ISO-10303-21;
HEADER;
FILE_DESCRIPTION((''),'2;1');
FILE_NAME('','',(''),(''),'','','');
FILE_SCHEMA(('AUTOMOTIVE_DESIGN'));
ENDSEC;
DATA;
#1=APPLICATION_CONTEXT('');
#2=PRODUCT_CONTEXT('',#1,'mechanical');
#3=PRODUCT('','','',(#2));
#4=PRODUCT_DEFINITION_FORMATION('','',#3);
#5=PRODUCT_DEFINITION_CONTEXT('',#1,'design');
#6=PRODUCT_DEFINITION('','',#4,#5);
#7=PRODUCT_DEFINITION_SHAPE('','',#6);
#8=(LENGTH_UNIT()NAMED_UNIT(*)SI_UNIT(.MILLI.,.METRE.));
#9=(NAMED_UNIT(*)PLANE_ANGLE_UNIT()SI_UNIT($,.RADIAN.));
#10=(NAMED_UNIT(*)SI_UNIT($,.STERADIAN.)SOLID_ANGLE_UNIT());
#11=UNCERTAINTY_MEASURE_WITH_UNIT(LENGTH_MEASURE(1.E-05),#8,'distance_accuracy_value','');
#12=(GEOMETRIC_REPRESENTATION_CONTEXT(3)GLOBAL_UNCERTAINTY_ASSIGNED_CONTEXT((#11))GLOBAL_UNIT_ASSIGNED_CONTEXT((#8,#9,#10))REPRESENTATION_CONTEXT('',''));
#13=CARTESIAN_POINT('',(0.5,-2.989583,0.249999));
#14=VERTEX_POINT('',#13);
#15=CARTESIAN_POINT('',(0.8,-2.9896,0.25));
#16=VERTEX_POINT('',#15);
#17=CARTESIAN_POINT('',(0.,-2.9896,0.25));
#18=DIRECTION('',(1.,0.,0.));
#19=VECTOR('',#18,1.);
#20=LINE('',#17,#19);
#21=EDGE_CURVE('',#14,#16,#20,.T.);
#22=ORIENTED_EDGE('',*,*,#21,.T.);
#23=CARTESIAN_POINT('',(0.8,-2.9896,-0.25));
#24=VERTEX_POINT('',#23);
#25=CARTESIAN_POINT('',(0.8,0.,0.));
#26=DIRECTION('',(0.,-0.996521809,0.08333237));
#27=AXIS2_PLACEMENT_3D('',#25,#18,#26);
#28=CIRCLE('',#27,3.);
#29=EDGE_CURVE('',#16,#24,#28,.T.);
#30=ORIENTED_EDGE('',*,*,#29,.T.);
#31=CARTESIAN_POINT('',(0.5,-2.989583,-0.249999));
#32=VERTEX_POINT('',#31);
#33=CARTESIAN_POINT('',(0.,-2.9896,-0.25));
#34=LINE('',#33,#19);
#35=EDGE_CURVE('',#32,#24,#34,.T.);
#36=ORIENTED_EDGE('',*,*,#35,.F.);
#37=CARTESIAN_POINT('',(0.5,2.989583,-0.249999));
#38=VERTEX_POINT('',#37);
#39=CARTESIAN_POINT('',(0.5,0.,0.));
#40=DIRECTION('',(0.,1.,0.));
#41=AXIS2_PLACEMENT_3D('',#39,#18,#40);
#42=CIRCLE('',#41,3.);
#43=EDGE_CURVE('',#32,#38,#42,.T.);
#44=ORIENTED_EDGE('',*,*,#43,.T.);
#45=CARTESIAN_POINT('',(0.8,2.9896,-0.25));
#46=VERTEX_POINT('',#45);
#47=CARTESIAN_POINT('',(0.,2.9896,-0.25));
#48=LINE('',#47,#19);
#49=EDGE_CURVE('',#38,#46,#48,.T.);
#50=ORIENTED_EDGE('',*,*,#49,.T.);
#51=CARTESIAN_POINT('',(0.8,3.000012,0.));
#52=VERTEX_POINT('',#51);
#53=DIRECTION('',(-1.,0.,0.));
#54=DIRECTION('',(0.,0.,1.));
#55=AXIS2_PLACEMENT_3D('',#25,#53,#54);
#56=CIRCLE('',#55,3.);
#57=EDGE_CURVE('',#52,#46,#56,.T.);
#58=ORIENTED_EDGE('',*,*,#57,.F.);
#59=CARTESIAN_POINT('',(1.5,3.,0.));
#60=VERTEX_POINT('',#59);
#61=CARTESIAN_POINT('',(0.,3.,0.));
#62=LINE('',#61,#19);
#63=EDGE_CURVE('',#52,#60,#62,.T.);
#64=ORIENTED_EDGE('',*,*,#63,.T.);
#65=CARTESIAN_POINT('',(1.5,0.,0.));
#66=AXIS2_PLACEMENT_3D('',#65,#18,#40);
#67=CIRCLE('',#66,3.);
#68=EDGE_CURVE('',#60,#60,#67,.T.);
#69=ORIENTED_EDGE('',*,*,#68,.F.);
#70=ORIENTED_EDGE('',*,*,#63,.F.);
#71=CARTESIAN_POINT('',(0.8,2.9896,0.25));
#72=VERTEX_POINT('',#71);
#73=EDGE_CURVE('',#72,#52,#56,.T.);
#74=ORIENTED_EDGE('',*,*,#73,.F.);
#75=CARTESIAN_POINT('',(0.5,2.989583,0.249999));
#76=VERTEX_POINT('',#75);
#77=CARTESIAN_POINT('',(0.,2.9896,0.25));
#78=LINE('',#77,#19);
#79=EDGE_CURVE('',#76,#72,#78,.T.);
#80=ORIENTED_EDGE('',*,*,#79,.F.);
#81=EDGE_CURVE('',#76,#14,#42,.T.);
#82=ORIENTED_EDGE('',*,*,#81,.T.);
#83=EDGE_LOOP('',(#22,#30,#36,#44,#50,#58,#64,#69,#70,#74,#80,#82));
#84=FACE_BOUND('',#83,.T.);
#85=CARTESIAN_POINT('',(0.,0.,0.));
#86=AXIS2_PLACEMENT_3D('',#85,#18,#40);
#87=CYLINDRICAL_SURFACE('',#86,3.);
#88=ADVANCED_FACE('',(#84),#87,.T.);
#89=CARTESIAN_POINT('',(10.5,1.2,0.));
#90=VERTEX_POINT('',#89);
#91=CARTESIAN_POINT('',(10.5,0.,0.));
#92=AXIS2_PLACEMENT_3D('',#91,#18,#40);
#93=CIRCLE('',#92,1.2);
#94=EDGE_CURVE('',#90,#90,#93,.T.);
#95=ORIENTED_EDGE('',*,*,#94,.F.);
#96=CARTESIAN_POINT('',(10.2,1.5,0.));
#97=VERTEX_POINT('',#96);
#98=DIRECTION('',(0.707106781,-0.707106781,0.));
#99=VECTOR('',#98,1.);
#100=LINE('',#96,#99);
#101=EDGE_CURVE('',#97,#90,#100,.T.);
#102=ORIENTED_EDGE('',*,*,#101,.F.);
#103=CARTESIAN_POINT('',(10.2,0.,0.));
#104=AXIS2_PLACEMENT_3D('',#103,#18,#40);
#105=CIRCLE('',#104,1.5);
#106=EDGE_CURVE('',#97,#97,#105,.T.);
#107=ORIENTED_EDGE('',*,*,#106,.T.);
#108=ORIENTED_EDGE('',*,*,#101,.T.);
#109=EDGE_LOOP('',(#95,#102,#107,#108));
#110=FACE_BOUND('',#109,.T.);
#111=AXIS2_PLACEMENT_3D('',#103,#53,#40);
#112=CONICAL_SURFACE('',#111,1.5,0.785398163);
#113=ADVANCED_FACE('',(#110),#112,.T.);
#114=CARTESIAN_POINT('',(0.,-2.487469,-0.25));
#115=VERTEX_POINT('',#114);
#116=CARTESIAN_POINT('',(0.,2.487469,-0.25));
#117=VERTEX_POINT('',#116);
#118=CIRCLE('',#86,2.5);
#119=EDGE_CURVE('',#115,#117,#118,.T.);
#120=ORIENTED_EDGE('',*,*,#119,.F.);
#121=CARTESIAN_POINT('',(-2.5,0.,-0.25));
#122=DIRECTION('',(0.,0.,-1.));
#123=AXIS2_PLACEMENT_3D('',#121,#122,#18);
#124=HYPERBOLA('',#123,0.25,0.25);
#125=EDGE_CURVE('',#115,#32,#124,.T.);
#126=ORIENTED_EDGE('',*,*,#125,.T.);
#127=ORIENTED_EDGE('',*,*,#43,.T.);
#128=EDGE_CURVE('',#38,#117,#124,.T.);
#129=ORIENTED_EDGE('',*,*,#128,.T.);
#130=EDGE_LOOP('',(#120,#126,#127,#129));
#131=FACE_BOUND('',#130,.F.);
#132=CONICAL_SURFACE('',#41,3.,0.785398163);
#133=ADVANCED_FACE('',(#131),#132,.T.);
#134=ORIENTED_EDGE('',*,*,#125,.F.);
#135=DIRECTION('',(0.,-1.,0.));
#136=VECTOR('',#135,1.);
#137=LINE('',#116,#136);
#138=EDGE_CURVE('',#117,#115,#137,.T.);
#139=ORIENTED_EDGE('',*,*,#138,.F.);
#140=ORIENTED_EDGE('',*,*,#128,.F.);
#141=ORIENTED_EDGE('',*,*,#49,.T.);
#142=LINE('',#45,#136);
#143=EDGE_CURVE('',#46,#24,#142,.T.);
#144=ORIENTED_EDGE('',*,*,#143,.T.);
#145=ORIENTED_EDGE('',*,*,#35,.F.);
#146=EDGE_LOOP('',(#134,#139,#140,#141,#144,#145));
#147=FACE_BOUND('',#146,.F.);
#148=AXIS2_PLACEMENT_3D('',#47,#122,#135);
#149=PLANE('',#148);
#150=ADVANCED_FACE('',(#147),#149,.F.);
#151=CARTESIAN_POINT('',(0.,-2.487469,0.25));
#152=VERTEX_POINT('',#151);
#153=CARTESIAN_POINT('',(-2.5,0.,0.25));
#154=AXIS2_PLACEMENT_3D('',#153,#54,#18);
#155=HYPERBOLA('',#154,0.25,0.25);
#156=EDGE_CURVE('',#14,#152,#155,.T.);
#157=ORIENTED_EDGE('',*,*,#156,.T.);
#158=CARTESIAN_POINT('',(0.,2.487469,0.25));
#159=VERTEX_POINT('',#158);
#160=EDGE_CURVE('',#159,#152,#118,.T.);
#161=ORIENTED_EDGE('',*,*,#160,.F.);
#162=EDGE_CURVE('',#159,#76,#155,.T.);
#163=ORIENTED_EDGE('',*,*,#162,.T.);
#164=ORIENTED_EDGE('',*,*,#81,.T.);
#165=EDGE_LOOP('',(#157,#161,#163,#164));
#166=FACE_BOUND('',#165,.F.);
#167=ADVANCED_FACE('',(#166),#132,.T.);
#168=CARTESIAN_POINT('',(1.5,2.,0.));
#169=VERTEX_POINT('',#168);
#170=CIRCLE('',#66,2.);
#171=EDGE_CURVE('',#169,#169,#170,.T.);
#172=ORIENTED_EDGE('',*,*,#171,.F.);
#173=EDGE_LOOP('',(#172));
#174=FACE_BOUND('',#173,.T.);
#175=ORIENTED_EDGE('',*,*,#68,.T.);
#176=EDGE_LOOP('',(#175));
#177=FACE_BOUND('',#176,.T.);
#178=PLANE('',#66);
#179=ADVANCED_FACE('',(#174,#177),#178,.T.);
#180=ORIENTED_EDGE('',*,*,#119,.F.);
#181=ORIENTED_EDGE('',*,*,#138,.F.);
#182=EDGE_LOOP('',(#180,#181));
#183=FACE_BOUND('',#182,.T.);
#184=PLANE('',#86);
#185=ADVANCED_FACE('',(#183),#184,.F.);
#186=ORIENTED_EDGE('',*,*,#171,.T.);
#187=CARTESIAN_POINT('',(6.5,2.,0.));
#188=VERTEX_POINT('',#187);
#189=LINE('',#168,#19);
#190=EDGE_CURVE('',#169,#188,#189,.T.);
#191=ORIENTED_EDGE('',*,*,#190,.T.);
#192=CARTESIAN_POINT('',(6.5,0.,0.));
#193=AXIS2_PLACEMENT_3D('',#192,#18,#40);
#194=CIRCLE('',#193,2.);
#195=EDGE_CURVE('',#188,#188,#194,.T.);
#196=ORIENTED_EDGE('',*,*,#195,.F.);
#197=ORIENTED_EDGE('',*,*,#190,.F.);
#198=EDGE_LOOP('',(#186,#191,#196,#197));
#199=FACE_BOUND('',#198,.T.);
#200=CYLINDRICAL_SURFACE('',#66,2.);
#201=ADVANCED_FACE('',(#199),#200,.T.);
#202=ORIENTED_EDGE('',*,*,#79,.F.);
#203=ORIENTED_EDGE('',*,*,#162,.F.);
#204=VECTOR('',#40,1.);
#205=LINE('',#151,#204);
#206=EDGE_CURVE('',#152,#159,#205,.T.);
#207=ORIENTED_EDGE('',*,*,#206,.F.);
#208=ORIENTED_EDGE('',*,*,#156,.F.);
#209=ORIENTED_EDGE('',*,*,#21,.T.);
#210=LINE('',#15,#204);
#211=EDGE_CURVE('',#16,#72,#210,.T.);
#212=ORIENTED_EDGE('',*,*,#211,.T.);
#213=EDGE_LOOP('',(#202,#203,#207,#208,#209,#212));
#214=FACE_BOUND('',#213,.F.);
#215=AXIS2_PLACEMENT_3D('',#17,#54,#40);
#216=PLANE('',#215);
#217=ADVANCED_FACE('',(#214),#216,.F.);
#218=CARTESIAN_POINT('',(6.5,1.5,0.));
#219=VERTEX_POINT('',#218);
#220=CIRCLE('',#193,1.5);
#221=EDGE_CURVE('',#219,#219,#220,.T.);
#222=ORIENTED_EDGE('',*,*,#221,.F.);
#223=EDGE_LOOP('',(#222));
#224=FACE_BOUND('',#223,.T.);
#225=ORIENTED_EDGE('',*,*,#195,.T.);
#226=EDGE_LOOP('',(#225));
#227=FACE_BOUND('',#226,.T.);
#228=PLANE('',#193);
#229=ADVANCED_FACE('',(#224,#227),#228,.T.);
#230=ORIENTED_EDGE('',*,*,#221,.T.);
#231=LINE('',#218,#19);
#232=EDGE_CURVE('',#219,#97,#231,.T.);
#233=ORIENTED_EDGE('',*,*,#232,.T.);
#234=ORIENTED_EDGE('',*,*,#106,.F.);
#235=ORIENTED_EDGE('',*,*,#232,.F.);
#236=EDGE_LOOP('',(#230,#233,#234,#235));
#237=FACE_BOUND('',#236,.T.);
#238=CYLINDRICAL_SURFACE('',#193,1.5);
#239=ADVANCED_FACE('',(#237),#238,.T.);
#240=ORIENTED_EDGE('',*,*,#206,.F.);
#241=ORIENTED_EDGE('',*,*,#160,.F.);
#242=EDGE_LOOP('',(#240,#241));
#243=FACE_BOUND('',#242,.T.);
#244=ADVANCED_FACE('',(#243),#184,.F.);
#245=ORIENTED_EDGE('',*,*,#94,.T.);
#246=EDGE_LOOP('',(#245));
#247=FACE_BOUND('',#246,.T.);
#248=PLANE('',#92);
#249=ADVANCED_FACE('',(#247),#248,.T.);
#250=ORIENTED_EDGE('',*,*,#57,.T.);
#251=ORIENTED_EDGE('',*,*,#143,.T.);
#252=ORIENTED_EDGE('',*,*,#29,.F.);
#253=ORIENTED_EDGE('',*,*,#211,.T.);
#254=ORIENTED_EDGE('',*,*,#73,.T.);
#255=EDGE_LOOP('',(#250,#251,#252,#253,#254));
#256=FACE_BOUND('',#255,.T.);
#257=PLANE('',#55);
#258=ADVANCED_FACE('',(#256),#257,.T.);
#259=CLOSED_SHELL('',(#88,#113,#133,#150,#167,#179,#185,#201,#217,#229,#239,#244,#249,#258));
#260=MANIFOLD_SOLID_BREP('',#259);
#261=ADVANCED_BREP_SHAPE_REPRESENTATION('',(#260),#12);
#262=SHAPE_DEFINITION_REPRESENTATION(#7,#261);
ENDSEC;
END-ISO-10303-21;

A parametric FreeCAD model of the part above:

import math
import FreeCAD as App
import Part
import Sketcher


def edges_at(feature, points):
    """Names of the edges that pass closest to the given points."""
    edges = feature.Shape.Edges
    near = lambda p: min(range(len(edges)), key=lambda i: edges[i].distToShape(Part.Vertex(*p))[0])
    return sorted({f"Edge{near(p) + 1}" for p in points})

doc = App.newDocument("Part")
body = doc.addObject("PartDesign::Body", "Body")

# Sketch on XY plane
sketch1 = doc.addObject("Sketcher::SketchObject", "Sketch")
body.addObject(sketch1)
sketch1.AttachmentSupport = (doc.XY_Plane, [""])
sketch1.MapMode = "FlatFace"
sketch1.addGeometry(Part.LineSegment(App.Vector(0, 3, 0), App.Vector(0, 0, 0)), False)
sketch1.addGeometry(Part.LineSegment(App.Vector(0, 0, 0), App.Vector(10.5, 0, 0)), False)
sketch1.addGeometry(Part.LineSegment(App.Vector(10.5, 0, 0), App.Vector(10.5, 1.5, 0)), False)
sketch1.addGeometry(Part.LineSegment(App.Vector(10.5, 1.5, 0), App.Vector(6.5, 1.5, 0)), False)
sketch1.addGeometry(Part.LineSegment(App.Vector(6.5, 1.5, 0), App.Vector(6.5, 2, 0)), False)
sketch1.addGeometry(Part.LineSegment(App.Vector(6.5, 2, 0), App.Vector(1.5, 2, 0)), False)
sketch1.addGeometry(Part.LineSegment(App.Vector(1.5, 2, 0), App.Vector(1.5, 3, 0)), False)
sketch1.addGeometry(Part.LineSegment(App.Vector(1.5, 3, 0), App.Vector(0, 3, 0)), False)
sketch1.addConstraint(Sketcher.Constraint("Coincident", 0, 2, 1, 1))
sketch1.addConstraint(Sketcher.Constraint("Coincident", 1, 2, 2, 1))
sketch1.addConstraint(Sketcher.Constraint("Coincident", 2, 2, 3, 1))
sketch1.addConstraint(Sketcher.Constraint("Coincident", 3, 2, 4, 1))
sketch1.addConstraint(Sketcher.Constraint("Coincident", 4, 2, 5, 1))
sketch1.addConstraint(Sketcher.Constraint("Coincident", 5, 2, 6, 1))
sketch1.addConstraint(Sketcher.Constraint("Coincident", 6, 2, 7, 1))
sketch1.addConstraint(Sketcher.Constraint("Coincident", 7, 2, 0, 1))
sketch1.addConstraint(Sketcher.Constraint("Vertical", 0))
sketch1.addConstraint(Sketcher.Constraint("Horizontal", 1))
sketch1.addConstraint(Sketcher.Constraint("Vertical", 2))
sketch1.addConstraint(Sketcher.Constraint("Horizontal", 3))
sketch1.addConstraint(Sketcher.Constraint("Vertical", 4))
sketch1.addConstraint(Sketcher.Constraint("Horizontal", 5))
sketch1.addConstraint(Sketcher.Constraint("Vertical", 6))
sketch1.addConstraint(Sketcher.Constraint("Horizontal", 7))
sketch1.addConstraint(Sketcher.Constraint("Coincident", 0, 2, -1, 1))
sketch1.addConstraint(Sketcher.Constraint("Equal", 7, 2))
sketch1.addConstraint(Sketcher.Constraint("DistanceX", 3, 2, 3, 1, 4.0))
sketch1.addConstraint(Sketcher.Constraint("DistanceY", 0, 2, 0, 1, 3.0))
sketch1.addConstraint(Sketcher.Constraint("DistanceX", 1, 1, 1, 2, 10.5))
sketch1.addConstraint(Sketcher.Constraint("DistanceX", 5, 2, 2, 2, 9.0))
sketch1.addConstraint(Sketcher.Constraint("DistanceY", 6, 1, 6, 2, 1.0))
revolution = doc.addObject("PartDesign::Revolution", "Revolution")
body.addObject(revolution)
revolution.Profile = sketch1
revolution.ReferenceAxis = (sketch1, ["H_Axis"])
revolution.Angle = 360
doc.recompute()

chamfer = doc.addObject("PartDesign::Chamfer", "Chamfer")
body.addObject(chamfer)
chamfer.Base = (revolution, edges_at(revolution, [(10.5, -1.5, 0)]))
chamfer.Size = 0.3
doc.recompute()

chamfer2 = doc.addObject("PartDesign::Chamfer", "Chamfer001")
body.addObject(chamfer2)
chamfer2.Base = (chamfer, edges_at(chamfer, [(0, -3, 0)]))
chamfer2.Size = 0.5

# Sketch on YZ plane
sketch2 = doc.addObject("Sketcher::SketchObject", "Sketch001")
body.addObject(sketch2)
sketch2.AttachmentSupport = (doc.YZ_Plane, [""])
sketch2.MapMode = "FlatFace"
sketch2.addGeometry(Part.ArcOfCircle(Part.Circle(App.Vector(0, 0, 0), App.Vector(0, 0, 1), 3), math.radians(175.22), math.radians(184.78)), False)
sketch2.addGeometry(Part.LineSegment(App.Vector(-2.99, 0.25, 0), App.Vector(2.99, 0.25, 0)), False)
sketch2.addGeometry(Part.ArcOfCircle(Part.Circle(App.Vector(0, 0, 0), App.Vector(0, 0, 1), 3), math.radians(-4.78), math.radians(4.78)), False)
sketch2.addGeometry(Part.LineSegment(App.Vector(2.99, -0.25, 0), App.Vector(-2.99, -0.25, 0)), False)
sketch2.addConstraint(Sketcher.Constraint("Coincident", 0, 1, 1, 1))
sketch2.addConstraint(Sketcher.Constraint("Coincident", 1, 2, 2, 2))
sketch2.addConstraint(Sketcher.Constraint("Coincident", 2, 1, 3, 1))
sketch2.addConstraint(Sketcher.Constraint("Coincident", 3, 2, 0, 2))
sketch2.addConstraint(Sketcher.Constraint("Horizontal", 1))
sketch2.addConstraint(Sketcher.Constraint("Horizontal", 3))
sketch2.addConstraint(Sketcher.Constraint("Coincident", 0, 3, -1, 1))
sketch2.addConstraint(Sketcher.Constraint("Coincident", 2, 3, -1, 1))
sketch2.addConstraint(Sketcher.Constraint("Equal", 0, 2))
sketch2.addConstraint(Sketcher.Constraint("Vertical", 1, 2, 2, 1))
sketch2.addConstraint(Sketcher.Constraint("Radius", 0, 3.0))
sketch2.addConstraint(Sketcher.Constraint("DistanceY", 2, 1, 1, 2, 0.5))
pocket1 = doc.addObject("PartDesign::Pocket", "Pocket")
body.addObject(pocket1)
pocket1.Profile = sketch2
pocket1.Length = 0.8
pocket1.Reversed = True

doc.recompute()
